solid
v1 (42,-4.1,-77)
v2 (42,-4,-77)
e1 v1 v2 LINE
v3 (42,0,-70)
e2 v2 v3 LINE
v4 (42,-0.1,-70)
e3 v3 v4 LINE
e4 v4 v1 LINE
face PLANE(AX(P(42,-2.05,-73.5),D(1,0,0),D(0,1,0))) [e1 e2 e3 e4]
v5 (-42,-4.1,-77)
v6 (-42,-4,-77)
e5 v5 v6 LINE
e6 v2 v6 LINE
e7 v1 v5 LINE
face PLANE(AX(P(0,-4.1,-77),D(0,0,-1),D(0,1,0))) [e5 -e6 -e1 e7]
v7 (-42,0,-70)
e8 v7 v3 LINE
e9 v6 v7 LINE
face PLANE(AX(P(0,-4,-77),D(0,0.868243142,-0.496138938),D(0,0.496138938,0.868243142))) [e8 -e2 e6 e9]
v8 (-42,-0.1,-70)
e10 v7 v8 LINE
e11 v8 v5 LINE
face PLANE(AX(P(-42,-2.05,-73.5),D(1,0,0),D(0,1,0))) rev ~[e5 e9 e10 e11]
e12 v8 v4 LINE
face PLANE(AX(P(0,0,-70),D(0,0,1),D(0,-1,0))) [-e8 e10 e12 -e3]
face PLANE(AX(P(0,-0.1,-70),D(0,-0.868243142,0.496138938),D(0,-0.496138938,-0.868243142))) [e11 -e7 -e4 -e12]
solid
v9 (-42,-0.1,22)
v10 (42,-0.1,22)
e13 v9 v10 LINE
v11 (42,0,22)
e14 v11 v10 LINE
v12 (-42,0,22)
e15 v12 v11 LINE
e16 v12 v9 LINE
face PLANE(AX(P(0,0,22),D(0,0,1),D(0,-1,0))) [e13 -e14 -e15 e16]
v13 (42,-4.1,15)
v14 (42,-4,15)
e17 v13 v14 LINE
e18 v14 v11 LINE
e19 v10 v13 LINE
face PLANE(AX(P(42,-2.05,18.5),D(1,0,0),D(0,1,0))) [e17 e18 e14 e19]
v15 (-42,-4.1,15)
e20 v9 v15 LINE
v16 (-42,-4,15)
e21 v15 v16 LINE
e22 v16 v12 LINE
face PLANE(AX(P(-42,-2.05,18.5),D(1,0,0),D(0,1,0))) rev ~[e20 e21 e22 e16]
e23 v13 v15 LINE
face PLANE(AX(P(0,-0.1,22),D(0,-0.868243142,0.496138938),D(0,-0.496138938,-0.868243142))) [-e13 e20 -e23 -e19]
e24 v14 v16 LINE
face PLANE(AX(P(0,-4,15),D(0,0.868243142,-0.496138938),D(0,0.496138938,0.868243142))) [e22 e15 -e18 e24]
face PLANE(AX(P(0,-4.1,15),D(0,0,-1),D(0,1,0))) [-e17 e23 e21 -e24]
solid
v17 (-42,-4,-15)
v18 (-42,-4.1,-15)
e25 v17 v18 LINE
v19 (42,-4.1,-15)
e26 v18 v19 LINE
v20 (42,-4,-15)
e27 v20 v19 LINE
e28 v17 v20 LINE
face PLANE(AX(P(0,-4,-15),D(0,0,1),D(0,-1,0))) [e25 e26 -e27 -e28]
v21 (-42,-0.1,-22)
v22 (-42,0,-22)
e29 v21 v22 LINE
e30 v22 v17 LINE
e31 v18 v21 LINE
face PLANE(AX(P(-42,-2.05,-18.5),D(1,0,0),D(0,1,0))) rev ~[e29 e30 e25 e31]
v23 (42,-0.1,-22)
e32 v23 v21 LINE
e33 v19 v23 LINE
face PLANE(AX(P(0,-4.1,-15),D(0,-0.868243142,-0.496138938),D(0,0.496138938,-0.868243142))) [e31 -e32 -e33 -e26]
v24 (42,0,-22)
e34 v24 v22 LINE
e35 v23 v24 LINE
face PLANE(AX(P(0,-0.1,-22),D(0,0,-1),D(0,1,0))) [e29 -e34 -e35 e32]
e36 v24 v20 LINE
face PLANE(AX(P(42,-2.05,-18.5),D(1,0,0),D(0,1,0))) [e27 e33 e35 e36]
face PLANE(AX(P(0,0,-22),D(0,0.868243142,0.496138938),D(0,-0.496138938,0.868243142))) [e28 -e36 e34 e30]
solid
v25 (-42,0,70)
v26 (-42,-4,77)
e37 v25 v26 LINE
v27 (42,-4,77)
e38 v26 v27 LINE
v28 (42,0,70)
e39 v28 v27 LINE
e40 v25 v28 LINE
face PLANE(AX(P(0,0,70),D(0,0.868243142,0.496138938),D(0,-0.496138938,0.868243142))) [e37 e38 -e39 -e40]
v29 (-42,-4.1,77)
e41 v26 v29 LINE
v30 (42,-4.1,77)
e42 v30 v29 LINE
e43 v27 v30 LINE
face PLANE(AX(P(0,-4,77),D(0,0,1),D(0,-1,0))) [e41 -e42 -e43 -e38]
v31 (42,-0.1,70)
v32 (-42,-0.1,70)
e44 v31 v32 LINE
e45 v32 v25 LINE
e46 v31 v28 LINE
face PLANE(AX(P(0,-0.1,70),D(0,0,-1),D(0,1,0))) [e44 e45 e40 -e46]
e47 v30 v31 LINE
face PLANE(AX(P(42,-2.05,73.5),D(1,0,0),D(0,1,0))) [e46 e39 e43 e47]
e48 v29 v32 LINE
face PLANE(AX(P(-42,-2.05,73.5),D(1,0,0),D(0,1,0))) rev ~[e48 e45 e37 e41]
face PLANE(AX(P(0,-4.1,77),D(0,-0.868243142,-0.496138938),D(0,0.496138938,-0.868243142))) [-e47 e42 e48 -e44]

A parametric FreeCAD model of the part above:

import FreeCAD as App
import Part
import Sketcher
from FreeCAD import Vector


def add_polygon(sketch, points):
    """Adds a closed chain of lines whose ends are joined by coincident constraints."""
    first, n = sketch.GeometryCount, len(points)
    for a, b in zip(points, points[1:] + points[:1]):
        sketch.addGeometry(Part.LineSegment(App.Vector(*a, 0), App.Vector(*b, 0)), False)
    for i in range(n):
        sketch.addConstraint(Sketcher.Constraint("Coincident", first + i, 2, first + (i + 1) % n, 1))

doc = App.newDocument("Part")
body = doc.addObject("PartDesign::Body", "Body")

# Sketch on YZ plane
sketch1 = body.newObject("Sketcher::SketchObject", "Sketch")
sketch1.AttachmentSupport = (doc.getObject("YZ_Plane"), [""])
sketch1.MapMode = "FlatFace"
add_polygon(sketch1, [(0, -22), (-4, -15), (-4.1, -15), (-0.1, -22)])  # lines 0-3
sketch1.addConstraint([
    Sketcher.Constraint("Horizontal", 1),
    Sketcher.Constraint("Horizontal", 3),
    Sketcher.Constraint("PointOnObject", 3, 2, -2),
    Sketcher.Constraint("Parallel", 0, 2),
    Sketcher.Constraint("DistanceX", 1, 2, 1, 1, 0.1),
    Sketcher.Constraint("DistanceX", 0, 2, -1, 1, 4.0),
    Sketcher.Constraint("DistanceY", 0, 2, -1, 1, 15.0),
    Sketcher.Constraint("DistanceY", 2, 2, -1, 1, 22.0),
])
pad1 = body.newObject("PartDesign::Pad", "Pad")
pad1.Profile = sketch1
pad1.Length = 84
pad1.Midplane = True
body2 = doc.addObject("PartDesign::Body", "Body001")

# Sketch on YZ plane
sketch2 = body2.newObject("Sketcher::SketchObject", "Sketch001")
sketch2.AttachmentSupport = (doc.getObject("YZ_Plane001"), [""])
sketch2.MapMode = "FlatFace"
add_polygon(sketch2, [(-4, 15), (0, 22), (-0.1, 22), (-4.1, 15)])  # lines 0-3
sketch2.addConstraint([
    Sketcher.Constraint("Horizontal", 1),
    Sketcher.Constraint("Horizontal", 3),
    Sketcher.Constraint("PointOnObject", 0, 2, -2),
    Sketcher.Constraint("Parallel", 0, 2),
    Sketcher.Constraint("DistanceX", 1, 2, 1, 1, 0.1),
    Sketcher.Constraint("DistanceY", -1, 1, 0, 2, 22.0),
    Sketcher.Constraint("DistanceY", -1, 1, 2, 2, 15.0),
    Sketcher.Constraint("DistanceX", 3, 2, -1, 1, 4.0),
])
pad2 = body2.newObject("PartDesign::Pad", "Pad001")
pad2.Profile = sketch2
pad2.Length = 84
pad2.Midplane = True
body3 = doc.addObject("PartDesign::Body", "Body002")

# Sketch on YZ plane
sketch3 = body3.newObject("Sketcher::SketchObject", "Sketch002")
sketch3.AttachmentSupport = (doc.getObject("YZ_Plane002"), [""])
sketch3.MapMode = "FlatFace"
add_polygon(sketch3, [(-0.1, 70), (0, 70), (-4, 77), (-4.1, 77)])  # lines 0-3
sketch3.addConstraint([
    Sketcher.Constraint("Horizontal", 0),
    Sketcher.Constraint("Horizontal", 2),
    Sketcher.Constraint("PointOnObject", 0, 2, -2),
    Sketcher.Constraint("Parallel", 1, 3),
    Sketcher.Constraint("DistanceX", 0, 1, 0, 2, 0.1),
    Sketcher.Constraint("DistanceY", -1, 1, 0, 2, 70.0),
    Sketcher.Constraint("DistanceX", 1, 2, -1, 1, 4.0),
    Sketcher.Constraint("DistanceY", -1, 1, 1, 2, 77.0),
])
pad3 = body3.newObject("PartDesign::Pad", "Pad002")
pad3.Profile = sketch3
pad3.Length = 84
pad3.Midplane = True
body4 = doc.addObject("PartDesign::Body", "Body003")

# Sketch on YZ plane
sketch4 = body4.newObject("Sketcher::SketchObject", "Sketch003")
sketch4.AttachmentSupport = (doc.getObject("YZ_Plane003"), [""])
sketch4.MapMode = "FlatFace"
add_polygon(sketch4, [(-4, -77), (0, -70), (-0.1, -70), (-4.1, -77)])  # lines 0-3
sketch4.addConstraint([
    Sketcher.Constraint("Horizontal", 1),
    Sketcher.Constraint("Horizontal", 3),
    Sketcher.Constraint("PointOnObject", 0, 2, -2),
    Sketcher.Constraint("Parallel", 0, 2),
    Sketcher.Constraint("DistanceX", 1, 2, 1, 1, 0.1),
    Sketcher.Constraint("DistanceY", 0, 2, -1, 1, 70.0),
    Sketcher.Constraint("DistanceY", 2, 2, -1, 1, 77.0),
    Sketcher.Constraint("DistanceX", 3, 2, -1, 1, 4.0),
])
pad4 = body4.newObject("PartDesign::Pad", "Pad003")
pad4.Profile = sketch4
pad4.Length = 84
pad4.Midplane = True

doc.recompute()
